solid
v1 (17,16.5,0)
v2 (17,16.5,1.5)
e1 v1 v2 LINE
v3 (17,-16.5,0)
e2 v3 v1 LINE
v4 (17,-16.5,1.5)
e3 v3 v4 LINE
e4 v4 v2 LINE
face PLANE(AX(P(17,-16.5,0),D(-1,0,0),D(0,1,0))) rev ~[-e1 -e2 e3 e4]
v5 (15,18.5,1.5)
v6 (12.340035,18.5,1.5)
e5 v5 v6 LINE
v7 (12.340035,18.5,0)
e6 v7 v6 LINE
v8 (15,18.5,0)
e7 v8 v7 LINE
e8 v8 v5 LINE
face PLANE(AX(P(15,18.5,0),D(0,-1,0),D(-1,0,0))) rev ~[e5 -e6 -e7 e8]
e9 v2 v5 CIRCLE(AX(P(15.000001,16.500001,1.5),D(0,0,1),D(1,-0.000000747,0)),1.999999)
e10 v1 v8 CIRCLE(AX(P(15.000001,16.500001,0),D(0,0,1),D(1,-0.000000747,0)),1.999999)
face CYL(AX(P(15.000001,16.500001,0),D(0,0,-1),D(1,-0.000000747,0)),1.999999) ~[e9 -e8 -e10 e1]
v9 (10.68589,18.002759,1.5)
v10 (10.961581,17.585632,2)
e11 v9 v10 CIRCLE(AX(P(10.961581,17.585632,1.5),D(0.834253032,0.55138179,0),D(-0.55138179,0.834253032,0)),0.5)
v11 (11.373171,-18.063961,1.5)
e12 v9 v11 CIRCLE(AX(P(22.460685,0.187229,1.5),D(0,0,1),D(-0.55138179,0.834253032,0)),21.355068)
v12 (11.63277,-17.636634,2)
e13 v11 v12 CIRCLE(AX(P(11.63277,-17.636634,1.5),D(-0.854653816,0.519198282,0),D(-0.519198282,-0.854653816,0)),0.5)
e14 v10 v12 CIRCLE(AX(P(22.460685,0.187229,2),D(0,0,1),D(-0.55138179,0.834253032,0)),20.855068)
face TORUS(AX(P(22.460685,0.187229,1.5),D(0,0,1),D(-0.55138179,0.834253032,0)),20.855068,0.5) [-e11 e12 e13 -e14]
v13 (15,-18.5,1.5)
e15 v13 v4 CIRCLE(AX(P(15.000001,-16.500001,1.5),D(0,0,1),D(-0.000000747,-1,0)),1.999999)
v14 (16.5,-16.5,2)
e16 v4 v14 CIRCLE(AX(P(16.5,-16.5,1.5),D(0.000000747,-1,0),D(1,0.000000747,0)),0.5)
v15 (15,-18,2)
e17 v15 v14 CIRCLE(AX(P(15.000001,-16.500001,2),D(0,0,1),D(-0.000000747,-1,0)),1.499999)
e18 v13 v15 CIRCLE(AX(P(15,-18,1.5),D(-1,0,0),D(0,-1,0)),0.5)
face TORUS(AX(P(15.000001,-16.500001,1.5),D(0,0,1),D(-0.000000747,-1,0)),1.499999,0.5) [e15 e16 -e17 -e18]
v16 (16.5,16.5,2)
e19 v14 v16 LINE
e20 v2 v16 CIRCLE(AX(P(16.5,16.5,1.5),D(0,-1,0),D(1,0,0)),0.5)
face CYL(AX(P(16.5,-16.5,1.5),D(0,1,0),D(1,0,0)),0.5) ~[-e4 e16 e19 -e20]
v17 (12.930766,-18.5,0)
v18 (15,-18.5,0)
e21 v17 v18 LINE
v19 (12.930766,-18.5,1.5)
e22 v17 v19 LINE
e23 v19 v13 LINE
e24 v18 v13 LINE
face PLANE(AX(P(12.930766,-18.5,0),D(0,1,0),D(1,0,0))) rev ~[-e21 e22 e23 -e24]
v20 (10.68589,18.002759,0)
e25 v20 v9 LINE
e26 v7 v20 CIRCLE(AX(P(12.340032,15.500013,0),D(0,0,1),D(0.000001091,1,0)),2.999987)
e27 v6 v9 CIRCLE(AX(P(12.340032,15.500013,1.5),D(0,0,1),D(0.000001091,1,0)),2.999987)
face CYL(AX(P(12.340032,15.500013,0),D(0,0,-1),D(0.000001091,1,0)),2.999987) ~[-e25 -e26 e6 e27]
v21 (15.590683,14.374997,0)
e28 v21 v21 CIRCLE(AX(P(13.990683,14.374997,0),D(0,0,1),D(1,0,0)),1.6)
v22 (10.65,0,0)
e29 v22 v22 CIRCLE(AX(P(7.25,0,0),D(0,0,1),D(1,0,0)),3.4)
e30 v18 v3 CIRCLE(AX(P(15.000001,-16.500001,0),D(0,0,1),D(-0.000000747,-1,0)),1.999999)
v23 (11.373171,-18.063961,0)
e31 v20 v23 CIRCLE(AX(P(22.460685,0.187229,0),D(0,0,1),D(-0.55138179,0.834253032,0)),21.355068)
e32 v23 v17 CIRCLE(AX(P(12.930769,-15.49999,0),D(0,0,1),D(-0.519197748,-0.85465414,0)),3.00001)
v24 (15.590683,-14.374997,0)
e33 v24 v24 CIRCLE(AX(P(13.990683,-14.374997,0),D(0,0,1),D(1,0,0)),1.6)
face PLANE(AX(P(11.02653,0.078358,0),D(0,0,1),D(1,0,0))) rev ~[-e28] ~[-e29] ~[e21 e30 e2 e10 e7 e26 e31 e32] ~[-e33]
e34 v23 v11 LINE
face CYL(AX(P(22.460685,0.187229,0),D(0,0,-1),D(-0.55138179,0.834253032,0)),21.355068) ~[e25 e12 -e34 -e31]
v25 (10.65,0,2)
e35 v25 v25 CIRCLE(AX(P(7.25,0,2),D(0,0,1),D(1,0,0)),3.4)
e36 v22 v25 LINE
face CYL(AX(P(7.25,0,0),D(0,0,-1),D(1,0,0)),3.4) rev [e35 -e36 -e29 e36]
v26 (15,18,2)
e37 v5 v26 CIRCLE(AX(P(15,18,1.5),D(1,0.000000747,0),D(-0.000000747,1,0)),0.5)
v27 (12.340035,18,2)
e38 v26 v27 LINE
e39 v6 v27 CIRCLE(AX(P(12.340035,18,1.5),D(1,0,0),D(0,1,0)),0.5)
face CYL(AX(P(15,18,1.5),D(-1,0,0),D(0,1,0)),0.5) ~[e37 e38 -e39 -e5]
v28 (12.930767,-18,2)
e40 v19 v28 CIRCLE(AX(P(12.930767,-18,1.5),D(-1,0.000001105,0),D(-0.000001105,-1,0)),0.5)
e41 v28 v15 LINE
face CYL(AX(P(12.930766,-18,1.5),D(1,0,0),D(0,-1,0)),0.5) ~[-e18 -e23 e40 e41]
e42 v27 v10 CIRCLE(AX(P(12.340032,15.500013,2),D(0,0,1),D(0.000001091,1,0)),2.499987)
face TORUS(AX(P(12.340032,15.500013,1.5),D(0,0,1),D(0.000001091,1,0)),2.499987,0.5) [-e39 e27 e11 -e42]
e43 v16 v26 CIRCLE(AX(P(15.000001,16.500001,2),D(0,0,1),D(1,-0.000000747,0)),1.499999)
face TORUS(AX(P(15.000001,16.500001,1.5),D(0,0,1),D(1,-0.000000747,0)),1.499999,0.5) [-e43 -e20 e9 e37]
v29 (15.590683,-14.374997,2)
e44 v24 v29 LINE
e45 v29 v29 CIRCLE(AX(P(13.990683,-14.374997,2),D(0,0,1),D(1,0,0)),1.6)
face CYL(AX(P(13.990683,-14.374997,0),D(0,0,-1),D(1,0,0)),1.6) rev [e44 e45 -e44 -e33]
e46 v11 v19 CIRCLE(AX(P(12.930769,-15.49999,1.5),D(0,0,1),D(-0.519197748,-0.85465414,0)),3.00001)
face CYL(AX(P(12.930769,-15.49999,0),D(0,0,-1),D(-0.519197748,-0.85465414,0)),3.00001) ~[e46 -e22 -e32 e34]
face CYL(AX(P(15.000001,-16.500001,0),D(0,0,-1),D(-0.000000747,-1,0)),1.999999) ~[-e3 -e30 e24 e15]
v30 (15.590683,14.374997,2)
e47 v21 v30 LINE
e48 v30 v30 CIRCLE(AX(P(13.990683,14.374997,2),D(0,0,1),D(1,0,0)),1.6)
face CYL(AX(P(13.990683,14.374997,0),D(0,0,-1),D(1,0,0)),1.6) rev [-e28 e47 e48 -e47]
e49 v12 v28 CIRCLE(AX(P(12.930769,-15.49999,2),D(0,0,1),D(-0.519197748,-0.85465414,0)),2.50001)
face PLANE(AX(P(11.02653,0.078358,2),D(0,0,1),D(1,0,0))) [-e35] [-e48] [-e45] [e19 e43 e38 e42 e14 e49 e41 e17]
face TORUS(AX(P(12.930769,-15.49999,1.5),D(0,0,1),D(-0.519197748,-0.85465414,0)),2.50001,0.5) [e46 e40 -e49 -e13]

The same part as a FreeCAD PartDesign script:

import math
import FreeCAD as App
import Part
import Sketcher


def edges_at(feature, points):
    """Names of the edges that pass closest to the given points."""
    edges = feature.Shape.Edges
    near = lambda p: min(range(len(edges)), key=lambda i: edges[i].distToShape(Part.Vertex(*p))[0])
    return sorted({f"Edge{near(p) + 1}" for p in points})

doc = App.newDocument("Part")
body = doc.addObject("PartDesign::Body", "Body")

# Sketch on XY plane
sketch1 = body.newObject("Sketcher::SketchObject", "Sketch")
sketch1.AttachmentSupport = (doc.getObject("XY_Plane"), [""])
sketch1.MapMode = "FlatFace"
sketch1.addGeometry([
    Part.ArcOfCircle(Part.Circle(App.Vector(12.930769, -15.49999, 0), App.Vector(0, 0, 1), 3.00001), math.radians(-121.278453), math.radians(-90.000063)),  # 0
    Part.LineSegment(App.Vector(12.930766, -18.5, 0), App.Vector(15, -18.5, 0)),  # 1
    Part.ArcOfCircle(Part.Circle(App.Vector(15.000001, -16.500001, 0), App.Vector(0, 0, 1), 1.999999), math.radians(-90.000043), math.radians(0.000043)),  # 2
    Part.LineSegment(App.Vector(17, -16.5, 0), App.Vector(17, 16.5, 0)),  # 3
    Part.ArcOfCircle(Part.Circle(App.Vector(15.000001, 16.500001, 0), App.Vector(0, 0, 1), 1.999999), math.radians(-0.000043), math.radians(90.000043)),  # 4
    Part.LineSegment(App.Vector(15, 18.5, 0), App.Vector(12.340035, 18.5, 0)),  # 5
    Part.ArcOfCircle(Part.Circle(App.Vector(12.340032, 15.500013, 0), App.Vector(0, 0, 1), 2.999987), math.radians(89.999938), math.radians(123.461937)),  # 6
    Part.ArcOfCircle(Part.Circle(App.Vector(22.460685, 0.187229, 0), App.Vector(0, 0, 1), 21.355068), math.radians(123.461861), math.radians(238.721511)),  # 7
    Part.Circle(App.Vector(13.990683, -14.374997, 0), App.Vector(0, 0, 1), 1.6),  # 8
    Part.Circle(App.Vector(7.25, 0, 0), App.Vector(0, 0, 1), 3.4),  # 9
    Part.Circle(App.Vector(13.990683, 14.374997, 0), App.Vector(0, 0, 1), 1.6),  # 10
], False)
sketch1.addConstraint([
    Sketcher.Constraint("Coincident", 0, 2, 1, 1),
    Sketcher.Constraint("Coincident", 1, 2, 2, 1),
    Sketcher.Constraint("Coincident", 2, 2, 3, 1),
    Sketcher.Constraint("Coincident", 3, 2, 4, 1),
    Sketcher.Constraint("Coincident", 4, 2, 5, 1),
    Sketcher.Constraint("Coincident", 5, 2, 6, 1),
    Sketcher.Constraint("Coincident", 6, 2, 7, 1),
    Sketcher.Constraint("Coincident", 7, 2, 0, 1),
    Sketcher.Constraint("Horizontal", 1),
    Sketcher.Constraint("Vertical", 3),
    Sketcher.Constraint("Horizontal", 5),
    Sketcher.Constraint("PointOnObject", 9, 3, -1),
    Sketcher.Constraint("Radius", 2, 1.999999),
    Sketcher.Constraint("Radius", 4, 1.999999),
    Sketcher.Constraint("Diameter", 8, 3.2),
    Sketcher.Constraint("Diameter", 9, 6.8),
    Sketcher.Constraint("Diameter", 10, 3.2),
    Sketcher.Constraint("DistanceY", 3, 1, 3, 2, 33.0),
    Sketcher.Constraint("DistanceX", -1, 1, 2, 3, 15.000001),
    Sketcher.Constraint("DistanceX", -1, 1, 1, 2, 15.0),
    Sketcher.Constraint("DistanceX", -1, 1, 4, 2, 15.0),
    Sketcher.Constraint("DistanceY", 1, 2, 2, 2, 2.0),
    Sketcher.Constraint("DistanceY", 3, 2, 4, 2, 2.0),
    Sketcher.Constraint("DistanceY", 2, 3, -1, 1, 16.500001),
    Sketcher.Constraint("DistanceX", -1, 1, 9, 3, 7.25),
    Sketcher.Constraint("Radius", 0, 3.00001),
    Sketcher.Constraint("Radius", 6, 2.999987),
    Sketcher.Constraint("Radius", 7, 21.355068),
    Sketcher.Constraint("DistanceY", 8, 3, 4, 3, 30.874998),
    Sketcher.Constraint("DistanceX", 7, 2, 0, 3, 1.557598),
    Sketcher.Constraint("DistanceX", 1, 1, 1, 2, 2.069234),
    Sketcher.Constraint("DistanceX", 5, 2, 5, 1, 2.659965),
    Sketcher.Constraint("DistanceX", -1, 1, 0, 3, 12.930769),
    Sketcher.Constraint("DistanceX", -1, 1, 6, 3, 12.340032),
    Sketcher.Constraint("DistanceX", -1, 1, 6, 2, 10.68589),
    Sketcher.Constraint("DistanceX", 8, 3, 2, 3, 1.009318),
    Sketcher.Constraint("DistanceX", 6, 3, 10, 3, 1.650651),
    Sketcher.Constraint("DistanceY", -1, 1, 10, 3, 14.374997),
])
pad1 = body.newObject("PartDesign::Pad", "Pad")
pad1.Profile = sketch1
pad1.Length = 2
doc.recompute()

fillet = body.newObject("PartDesign::Fillet", "Fillet")
fillet.Base = (pad1, edges_at(pad1, [(1.109, -0.22, 2)]))
fillet.Radius = 0.5

doc.recompute()
